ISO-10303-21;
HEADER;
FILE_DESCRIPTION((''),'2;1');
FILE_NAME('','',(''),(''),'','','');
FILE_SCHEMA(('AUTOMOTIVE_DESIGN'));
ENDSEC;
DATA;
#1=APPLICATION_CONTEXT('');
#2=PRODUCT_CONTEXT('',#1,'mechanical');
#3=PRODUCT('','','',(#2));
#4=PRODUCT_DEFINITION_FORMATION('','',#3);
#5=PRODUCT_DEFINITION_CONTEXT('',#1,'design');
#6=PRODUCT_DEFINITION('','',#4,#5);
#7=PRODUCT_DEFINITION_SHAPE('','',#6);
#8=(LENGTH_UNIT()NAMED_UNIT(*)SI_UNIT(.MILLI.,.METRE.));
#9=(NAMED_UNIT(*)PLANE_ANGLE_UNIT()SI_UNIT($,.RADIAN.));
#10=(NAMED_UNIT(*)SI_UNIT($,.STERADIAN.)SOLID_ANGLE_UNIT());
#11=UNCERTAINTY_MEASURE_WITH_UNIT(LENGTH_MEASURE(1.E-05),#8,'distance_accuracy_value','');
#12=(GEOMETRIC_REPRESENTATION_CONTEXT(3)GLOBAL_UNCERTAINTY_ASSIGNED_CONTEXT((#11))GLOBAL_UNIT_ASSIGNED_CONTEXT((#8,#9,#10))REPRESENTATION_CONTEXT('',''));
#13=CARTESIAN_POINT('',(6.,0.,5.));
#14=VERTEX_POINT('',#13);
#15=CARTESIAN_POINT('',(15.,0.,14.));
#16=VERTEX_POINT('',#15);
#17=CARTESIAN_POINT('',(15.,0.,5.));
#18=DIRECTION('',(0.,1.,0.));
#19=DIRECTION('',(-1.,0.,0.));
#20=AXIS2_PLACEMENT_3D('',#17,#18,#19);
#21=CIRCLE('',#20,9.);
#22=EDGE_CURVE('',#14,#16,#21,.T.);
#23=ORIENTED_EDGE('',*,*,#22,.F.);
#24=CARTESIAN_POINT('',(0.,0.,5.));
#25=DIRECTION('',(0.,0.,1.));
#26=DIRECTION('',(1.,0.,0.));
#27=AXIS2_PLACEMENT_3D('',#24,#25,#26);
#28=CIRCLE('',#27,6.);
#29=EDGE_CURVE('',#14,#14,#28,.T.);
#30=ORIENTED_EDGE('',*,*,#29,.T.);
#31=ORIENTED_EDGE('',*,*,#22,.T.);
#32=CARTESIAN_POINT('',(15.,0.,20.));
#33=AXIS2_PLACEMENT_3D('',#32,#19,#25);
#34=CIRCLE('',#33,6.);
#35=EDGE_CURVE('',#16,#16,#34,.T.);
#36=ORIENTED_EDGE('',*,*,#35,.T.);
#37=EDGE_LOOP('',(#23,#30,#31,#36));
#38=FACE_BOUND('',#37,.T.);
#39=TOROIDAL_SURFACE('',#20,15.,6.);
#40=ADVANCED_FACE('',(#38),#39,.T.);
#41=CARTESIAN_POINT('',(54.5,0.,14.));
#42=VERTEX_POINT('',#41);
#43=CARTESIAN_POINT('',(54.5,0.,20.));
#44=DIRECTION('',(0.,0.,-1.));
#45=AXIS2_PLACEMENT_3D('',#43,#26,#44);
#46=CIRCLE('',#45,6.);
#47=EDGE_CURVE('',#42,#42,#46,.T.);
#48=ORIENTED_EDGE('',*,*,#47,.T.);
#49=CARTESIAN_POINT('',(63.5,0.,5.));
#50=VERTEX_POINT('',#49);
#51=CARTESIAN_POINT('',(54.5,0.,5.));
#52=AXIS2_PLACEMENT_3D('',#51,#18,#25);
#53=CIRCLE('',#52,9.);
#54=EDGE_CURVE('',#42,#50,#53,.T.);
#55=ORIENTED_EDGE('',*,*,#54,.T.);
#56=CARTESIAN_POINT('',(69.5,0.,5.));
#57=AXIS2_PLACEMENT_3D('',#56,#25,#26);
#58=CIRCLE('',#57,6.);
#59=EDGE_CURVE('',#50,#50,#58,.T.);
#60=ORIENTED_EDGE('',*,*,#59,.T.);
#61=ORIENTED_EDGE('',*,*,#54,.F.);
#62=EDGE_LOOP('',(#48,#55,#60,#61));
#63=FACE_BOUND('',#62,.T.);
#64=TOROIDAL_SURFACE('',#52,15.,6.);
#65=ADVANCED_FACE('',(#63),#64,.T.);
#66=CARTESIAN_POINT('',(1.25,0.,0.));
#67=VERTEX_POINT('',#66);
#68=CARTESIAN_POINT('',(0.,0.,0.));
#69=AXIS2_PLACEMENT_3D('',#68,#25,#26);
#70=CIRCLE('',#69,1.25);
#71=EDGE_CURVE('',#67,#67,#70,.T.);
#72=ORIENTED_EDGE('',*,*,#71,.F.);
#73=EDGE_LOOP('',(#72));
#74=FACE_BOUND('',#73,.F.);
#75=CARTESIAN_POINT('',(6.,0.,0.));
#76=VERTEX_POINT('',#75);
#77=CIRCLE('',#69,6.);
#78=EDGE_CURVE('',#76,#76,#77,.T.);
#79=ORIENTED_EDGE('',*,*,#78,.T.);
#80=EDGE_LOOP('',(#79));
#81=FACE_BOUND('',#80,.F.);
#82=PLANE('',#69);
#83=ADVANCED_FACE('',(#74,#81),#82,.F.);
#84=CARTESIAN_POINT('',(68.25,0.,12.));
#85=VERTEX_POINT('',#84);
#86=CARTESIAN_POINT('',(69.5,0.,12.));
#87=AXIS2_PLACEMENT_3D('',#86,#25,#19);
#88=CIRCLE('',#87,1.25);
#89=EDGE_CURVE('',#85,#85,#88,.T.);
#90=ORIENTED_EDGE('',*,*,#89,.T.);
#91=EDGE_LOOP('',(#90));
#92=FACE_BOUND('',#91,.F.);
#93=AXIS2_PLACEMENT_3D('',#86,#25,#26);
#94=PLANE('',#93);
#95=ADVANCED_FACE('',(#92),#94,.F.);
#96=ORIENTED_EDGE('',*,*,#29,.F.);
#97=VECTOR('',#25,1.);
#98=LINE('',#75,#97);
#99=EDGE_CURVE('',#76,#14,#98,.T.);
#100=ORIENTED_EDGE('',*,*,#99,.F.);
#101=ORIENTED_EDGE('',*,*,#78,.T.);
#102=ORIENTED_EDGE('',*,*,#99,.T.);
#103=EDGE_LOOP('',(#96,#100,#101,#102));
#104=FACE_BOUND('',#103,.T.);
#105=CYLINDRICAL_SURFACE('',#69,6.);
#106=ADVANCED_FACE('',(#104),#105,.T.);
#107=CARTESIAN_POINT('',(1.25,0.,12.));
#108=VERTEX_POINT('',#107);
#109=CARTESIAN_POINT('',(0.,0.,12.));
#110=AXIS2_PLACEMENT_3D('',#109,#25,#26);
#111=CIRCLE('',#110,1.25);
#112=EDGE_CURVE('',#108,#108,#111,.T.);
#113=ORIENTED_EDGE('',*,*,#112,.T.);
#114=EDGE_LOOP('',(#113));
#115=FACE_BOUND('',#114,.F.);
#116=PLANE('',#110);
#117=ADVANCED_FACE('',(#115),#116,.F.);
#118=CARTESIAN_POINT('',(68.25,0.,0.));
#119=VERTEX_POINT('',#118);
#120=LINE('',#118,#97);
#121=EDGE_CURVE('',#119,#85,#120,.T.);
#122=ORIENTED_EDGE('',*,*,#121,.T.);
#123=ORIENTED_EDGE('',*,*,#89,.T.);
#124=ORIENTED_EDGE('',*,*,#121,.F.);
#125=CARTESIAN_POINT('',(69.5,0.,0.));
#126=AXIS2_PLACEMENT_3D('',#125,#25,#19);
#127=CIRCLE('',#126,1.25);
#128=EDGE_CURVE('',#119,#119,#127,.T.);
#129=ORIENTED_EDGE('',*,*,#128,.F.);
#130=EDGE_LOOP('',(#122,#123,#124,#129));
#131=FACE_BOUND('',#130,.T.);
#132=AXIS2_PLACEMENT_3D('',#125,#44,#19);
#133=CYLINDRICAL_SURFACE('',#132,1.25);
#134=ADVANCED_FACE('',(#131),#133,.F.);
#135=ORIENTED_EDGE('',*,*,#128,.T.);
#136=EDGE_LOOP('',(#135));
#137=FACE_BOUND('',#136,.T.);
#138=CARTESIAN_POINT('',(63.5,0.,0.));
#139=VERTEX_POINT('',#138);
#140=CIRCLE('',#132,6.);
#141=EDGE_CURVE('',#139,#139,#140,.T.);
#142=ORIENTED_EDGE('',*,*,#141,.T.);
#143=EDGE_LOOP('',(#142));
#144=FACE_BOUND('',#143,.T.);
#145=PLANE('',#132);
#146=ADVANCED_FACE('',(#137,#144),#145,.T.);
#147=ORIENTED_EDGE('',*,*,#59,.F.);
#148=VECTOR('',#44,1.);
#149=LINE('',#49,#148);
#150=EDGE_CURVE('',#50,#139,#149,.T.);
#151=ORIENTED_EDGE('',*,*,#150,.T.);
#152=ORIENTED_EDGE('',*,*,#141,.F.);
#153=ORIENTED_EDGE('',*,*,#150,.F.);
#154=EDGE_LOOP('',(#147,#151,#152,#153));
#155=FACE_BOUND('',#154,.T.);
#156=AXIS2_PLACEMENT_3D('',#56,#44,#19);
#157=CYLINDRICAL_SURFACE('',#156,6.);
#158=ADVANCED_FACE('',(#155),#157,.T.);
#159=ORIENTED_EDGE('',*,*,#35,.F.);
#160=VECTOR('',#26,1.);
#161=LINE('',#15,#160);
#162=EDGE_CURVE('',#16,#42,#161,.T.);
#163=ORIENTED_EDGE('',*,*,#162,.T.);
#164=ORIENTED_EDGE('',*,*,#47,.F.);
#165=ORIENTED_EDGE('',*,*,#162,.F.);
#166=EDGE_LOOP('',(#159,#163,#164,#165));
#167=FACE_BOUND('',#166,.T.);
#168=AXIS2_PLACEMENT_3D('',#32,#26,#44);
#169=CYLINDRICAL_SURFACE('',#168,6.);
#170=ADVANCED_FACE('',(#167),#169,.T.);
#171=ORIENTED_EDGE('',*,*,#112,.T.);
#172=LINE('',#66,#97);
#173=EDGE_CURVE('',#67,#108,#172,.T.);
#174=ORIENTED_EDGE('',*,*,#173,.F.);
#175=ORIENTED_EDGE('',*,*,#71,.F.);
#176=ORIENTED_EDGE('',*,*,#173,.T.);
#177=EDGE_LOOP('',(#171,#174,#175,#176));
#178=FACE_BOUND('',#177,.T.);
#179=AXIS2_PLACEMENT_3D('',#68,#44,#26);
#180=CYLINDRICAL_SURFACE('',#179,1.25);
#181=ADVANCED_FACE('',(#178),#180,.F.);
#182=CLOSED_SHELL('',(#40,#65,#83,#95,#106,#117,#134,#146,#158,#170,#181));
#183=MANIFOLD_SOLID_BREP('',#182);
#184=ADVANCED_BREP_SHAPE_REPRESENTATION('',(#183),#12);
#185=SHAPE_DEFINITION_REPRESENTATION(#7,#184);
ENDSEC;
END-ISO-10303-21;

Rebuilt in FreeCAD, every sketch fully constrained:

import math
import FreeCAD as App
import Part
import Sketcher
from FreeCAD import Vector

doc = App.newDocument("Part")
body = doc.addObject("PartDesign::Body", "Body")

sketch1 = doc.addObject("Sketcher::SketchObject", "Sketch")
body.addObject(sketch1)
sketch1.AttachmentSupport = (doc.XY_Plane, [""])
sketch1.MapMode = "FlatFace"
sketch1.addGeometry(Part.Circle(Vector(0, 0, 0), Vector(0, 0, 1), 6), False)
sketch1.addConstraint(Sketcher.Constraint("Coincident", 0, 3, -1, 1))
sketch1.addConstraint(Sketcher.Constraint("Diameter", 0, 12.0))

sketch2 = doc.addObject("Sketcher::SketchObject", "Sketch001")
body.addObject(sketch2)
sketch2.AttachmentSupport = (doc.XZ_Plane, [""])
sketch2.MapMode = "FlatFace"
sketch2.addGeometry(Part.LineSegment(Vector(0, 0, 0), Vector(0, 5, 0)), False)
sketch2.addGeometry(Part.ArcOfCircle(Part.Circle(Vector(15, 5, 0), Vector(0, 0, 1), 15), math.radians(90), math.radians(180)), False)
sketch2.addGeometry(Part.LineSegment(Vector(15, 20, 0), Vector(54.5, 20, 0)), False)
sketch2.addGeometry(Part.ArcOfCircle(Part.Circle(Vector(54.5, 5, 0), Vector(0, 0, 1), 15), math.radians(0), math.radians(90)), False)
sketch2.addGeometry(Part.LineSegment(Vector(69.5, 5, 0), Vector(69.5, 0, 0)), False)
sketch2.addConstraint(Sketcher.Constraint("Tangent", 0, 2, 1, 2))
sketch2.addConstraint(Sketcher.Constraint("Tangent", 1, 1, 2, 1))
sketch2.addConstraint(Sketcher.Constraint("Tangent", 2, 2, 3, 2))
sketch2.addConstraint(Sketcher.Constraint("Tangent", 3, 1, 4, 1))
sketch2.addConstraint(Sketcher.Constraint("Vertical", 0))
sketch2.addConstraint(Sketcher.Constraint("Horizontal", 2))
sketch2.addConstraint(Sketcher.Constraint("Vertical", 4))
sketch2.addConstraint(Sketcher.Constraint("Coincident", 0, 1, -1, 1))
sketch2.addConstraint(Sketcher.Constraint("Equal", 1, 3))
sketch2.addConstraint(Sketcher.Constraint("PointOnObject", 4, 2, -1))
sketch2.addConstraint(Sketcher.Constraint("Radius", 1, 15.0))
sketch2.addConstraint(Sketcher.Constraint("DistanceY", 0, 1, 0, 2, 5.0))
sketch2.addConstraint(Sketcher.Constraint("DistanceX", 2, 1, 2, 2, 39.5))
doc.recompute()

additivepipe = doc.addObject("PartDesign::AdditivePipe", "AdditivePipe")
body.addObject(additivepipe)
additivepipe.Profile = sketch1
additivepipe.Spine = (sketch2, ["Edge1", "Edge2", "Edge3", "Edge4", "Edge5"])

sketch3 = doc.addObject("Sketcher::SketchObject", "Sketch002")
body.addObject(sketch3)
sketch3.AttachmentSupport = (doc.XY_Plane, [""])
sketch3.MapMode = "FlatFace"
sketch3.addGeometry(Part.Circle(Vector(0, 0, 0), Vector(0, 0, 1), 1.25), False)
sketch3.addConstraint(Sketcher.Constraint("Coincident", 0, 3, -1, 1))
sketch3.addConstraint(Sketcher.Constraint("Diameter", 0, 2.5))
pocket1 = doc.addObject("PartDesign::Pocket", "Pocket")
body.addObject(pocket1)
pocket1.Profile = sketch3
pocket1.Length = 12
pocket1.Reversed = True

sketch4 = doc.addObject("Sketcher::SketchObject", "Sketch003")
body.addObject(sketch4)
sketch4.AttachmentSupport = (doc.XY_Plane, [""])
sketch4.MapMode = "FlatFace"
sketch4.addGeometry(Part.Circle(Vector(69.5, 0, 0), Vector(0, 0, 1), 1.25), False)
sketch4.addConstraint(Sketcher.Constraint("PointOnObject", 0, 3, -1))
sketch4.addConstraint(Sketcher.Constraint("Diameter", 0, 2.5))
sketch4.addConstraint(Sketcher.Constraint("DistanceX", -1, 1, 0, 3, 69.5))
pocket2 = doc.addObject("PartDesign::Pocket", "Pocket001")
body.addObject(pocket2)
pocket2.Profile = sketch4
pocket2.Length = 12
pocket2.Reversed = True

doc.recompute()
